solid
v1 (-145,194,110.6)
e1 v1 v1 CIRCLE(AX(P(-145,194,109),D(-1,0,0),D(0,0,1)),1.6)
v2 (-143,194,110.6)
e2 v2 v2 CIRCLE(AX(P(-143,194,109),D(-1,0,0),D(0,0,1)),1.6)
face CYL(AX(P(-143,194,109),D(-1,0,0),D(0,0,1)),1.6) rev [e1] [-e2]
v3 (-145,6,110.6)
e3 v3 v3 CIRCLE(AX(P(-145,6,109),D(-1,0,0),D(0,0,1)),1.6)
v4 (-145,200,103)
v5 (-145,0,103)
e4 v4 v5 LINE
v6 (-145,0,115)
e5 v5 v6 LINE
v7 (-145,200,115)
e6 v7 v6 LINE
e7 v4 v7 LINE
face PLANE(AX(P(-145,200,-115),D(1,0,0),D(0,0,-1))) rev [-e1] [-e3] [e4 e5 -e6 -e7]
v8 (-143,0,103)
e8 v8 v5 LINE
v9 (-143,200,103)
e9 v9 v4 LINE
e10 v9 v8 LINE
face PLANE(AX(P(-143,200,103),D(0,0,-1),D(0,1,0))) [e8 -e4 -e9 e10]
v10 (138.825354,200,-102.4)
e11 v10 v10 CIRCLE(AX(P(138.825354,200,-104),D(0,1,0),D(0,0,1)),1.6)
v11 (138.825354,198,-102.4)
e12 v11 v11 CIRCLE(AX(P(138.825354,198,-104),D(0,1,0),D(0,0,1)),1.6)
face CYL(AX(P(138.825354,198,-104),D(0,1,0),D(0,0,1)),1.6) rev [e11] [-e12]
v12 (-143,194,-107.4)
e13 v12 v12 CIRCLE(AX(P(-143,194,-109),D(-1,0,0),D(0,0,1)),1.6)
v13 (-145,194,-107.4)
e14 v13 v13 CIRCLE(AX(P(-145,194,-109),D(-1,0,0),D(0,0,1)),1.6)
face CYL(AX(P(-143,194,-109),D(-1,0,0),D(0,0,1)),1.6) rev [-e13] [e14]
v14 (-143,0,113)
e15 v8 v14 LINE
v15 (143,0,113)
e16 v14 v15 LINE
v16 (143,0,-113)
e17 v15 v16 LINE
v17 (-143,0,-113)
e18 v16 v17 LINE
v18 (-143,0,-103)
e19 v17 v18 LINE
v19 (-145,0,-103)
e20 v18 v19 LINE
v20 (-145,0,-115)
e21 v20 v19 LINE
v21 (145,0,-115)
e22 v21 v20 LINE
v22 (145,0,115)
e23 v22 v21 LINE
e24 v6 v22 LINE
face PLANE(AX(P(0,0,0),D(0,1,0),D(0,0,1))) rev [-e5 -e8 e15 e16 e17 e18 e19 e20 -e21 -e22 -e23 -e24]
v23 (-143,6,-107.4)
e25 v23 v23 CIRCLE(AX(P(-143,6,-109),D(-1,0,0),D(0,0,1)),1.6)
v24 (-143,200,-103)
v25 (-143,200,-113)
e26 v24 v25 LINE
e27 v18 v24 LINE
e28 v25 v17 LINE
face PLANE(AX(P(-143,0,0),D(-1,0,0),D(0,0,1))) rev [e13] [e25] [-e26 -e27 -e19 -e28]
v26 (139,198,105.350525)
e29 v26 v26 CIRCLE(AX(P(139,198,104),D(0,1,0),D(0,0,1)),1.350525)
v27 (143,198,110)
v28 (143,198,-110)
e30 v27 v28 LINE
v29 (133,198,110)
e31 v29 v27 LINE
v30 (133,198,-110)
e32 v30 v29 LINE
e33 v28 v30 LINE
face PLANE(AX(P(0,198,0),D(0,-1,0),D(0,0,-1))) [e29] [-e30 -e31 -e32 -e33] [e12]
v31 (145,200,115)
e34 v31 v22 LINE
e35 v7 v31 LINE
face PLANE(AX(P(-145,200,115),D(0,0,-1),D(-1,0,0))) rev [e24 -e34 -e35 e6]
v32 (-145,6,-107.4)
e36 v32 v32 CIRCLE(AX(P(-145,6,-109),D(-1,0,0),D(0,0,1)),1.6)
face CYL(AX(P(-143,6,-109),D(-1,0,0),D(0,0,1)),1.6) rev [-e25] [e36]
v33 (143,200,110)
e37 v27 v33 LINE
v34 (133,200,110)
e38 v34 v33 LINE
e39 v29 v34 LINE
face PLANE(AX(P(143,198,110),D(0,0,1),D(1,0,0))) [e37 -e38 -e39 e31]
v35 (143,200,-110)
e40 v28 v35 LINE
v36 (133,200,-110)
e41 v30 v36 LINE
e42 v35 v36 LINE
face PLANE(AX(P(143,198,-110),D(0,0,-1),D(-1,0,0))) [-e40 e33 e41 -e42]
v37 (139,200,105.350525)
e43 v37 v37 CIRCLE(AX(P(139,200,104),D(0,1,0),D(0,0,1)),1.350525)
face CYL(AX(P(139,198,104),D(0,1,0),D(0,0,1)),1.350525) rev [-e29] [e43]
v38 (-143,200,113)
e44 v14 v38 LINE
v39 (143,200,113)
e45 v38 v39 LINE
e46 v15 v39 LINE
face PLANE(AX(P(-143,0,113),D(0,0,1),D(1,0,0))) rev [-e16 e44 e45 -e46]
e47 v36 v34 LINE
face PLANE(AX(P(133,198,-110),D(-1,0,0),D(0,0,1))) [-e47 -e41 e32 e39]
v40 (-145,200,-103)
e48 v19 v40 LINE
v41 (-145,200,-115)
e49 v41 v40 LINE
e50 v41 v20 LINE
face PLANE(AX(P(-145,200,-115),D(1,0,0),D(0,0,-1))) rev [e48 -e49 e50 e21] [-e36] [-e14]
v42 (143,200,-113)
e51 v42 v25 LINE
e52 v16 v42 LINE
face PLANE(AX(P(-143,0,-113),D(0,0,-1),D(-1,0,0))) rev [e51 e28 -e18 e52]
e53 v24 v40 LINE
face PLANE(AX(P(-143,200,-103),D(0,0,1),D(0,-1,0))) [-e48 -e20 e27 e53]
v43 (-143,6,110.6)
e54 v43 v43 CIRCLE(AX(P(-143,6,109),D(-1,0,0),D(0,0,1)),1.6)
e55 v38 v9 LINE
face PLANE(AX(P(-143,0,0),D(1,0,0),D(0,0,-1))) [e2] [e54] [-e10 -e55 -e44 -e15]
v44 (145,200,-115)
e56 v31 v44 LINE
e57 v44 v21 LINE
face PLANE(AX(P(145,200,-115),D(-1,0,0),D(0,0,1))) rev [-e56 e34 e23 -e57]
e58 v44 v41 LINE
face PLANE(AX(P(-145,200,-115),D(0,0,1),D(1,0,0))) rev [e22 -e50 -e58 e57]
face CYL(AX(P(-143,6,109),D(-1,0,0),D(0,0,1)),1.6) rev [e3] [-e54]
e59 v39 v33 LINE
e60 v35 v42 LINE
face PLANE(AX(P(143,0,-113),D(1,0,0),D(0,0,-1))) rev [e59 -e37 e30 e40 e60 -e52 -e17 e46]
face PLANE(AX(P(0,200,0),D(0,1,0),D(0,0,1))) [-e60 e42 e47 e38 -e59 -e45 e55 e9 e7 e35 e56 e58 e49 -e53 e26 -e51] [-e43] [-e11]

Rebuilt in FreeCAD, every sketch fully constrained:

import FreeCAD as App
import Part
import Sketcher
Q = App.Units.Quantity


def add_polygon(sketch, points):
    """Adds a closed chain of lines whose ends are joined by coincident constraints."""
    first, n = sketch.GeometryCount, len(points)
    for a, b in zip(points, points[1:] + points[:1]):
        sketch.addGeometry(Part.LineSegment(App.Vector(*a, 0), App.Vector(*b, 0)), False)
    for i in range(n):
        sketch.addConstraint(Sketcher.Constraint("Coincident", first + i, 2, first + (i + 1) % n, 1))

doc = App.newDocument("Part")
body = doc.addObject("PartDesign::Body", "Body")

# Sketch on XZ plane
sketch1 = body.newObject("Sketcher::SketchObject", "Sketch")
sketch1.AttachmentSupport = (doc.getObject("XZ_Plane"), [""])
sketch1.MapMode = "FlatFace"
add_polygon(sketch1, [(-145, -115), (-145, 115), (145, 115), (145, -115)])  # lines 0-3
sketch1.addConstraint([
    Sketcher.Constraint("Vertical", 0),
    Sketcher.Constraint("Horizontal", 1),
    Sketcher.Constraint("Vertical", 2),
    Sketcher.Constraint("Horizontal", 3),
    Sketcher.Constraint("Symmetric", 0, 2, 2, 2, -1, 1),
    Sketcher.Constraint("DistanceX", 1, 1, 1, 2, Q("290 mm")),
    Sketcher.Constraint("DistanceY", 0, 1, 0, 2, Q("230 mm")),
])
pad1 = body.newObject("PartDesign::Pad", "Pad")
pad1.Profile = sketch1
pad1.Length = 200
pad1.Reversed = True

# Sketch on XZ plane
sketch2 = body.newObject("Sketcher::SketchObject", "Sketch001")
sketch2.AttachmentSupport = (doc.getObject("XZ_Plane"), [""])
sketch2.MapMode = "FlatFace"
sketch2.AttachmentOffset = App.Placement(App.Vector(0, 0, -200), App.Rotation())
add_polygon(sketch2, [(-143, -113), (-143, 113), (143, 113), (143, -113)])  # lines 0-3
sketch2.addConstraint([
    Sketcher.Constraint("Vertical", 0),
    Sketcher.Constraint("Horizontal", 1),
    Sketcher.Constraint("Vertical", 2),
    Sketcher.Constraint("Horizontal", 3),
    Sketcher.Constraint("Symmetric", 0, 2, 2, 2, -1, 1),
    Sketcher.Constraint("DistanceX", 1, 1, 1, 2, Q("286 mm")),
    Sketcher.Constraint("DistanceY", 0, 1, 0, 2, Q("226 mm")),
])
pocket1 = body.newObject("PartDesign::Pocket", "Pocket")
pocket1.Profile = sketch2
pocket1.Length = 200
pocket1.Reversed = True

# Sketch on YZ plane
sketch3 = body.newObject("Sketcher::SketchObject", "Sketch002")
sketch3.AttachmentSupport = (doc.getObject("YZ_Plane"), [""])
sketch3.MapMode = "FlatFace"
sketch3.AttachmentOffset = App.Placement(App.Vector(0, 0, -145), App.Rotation())
add_polygon(sketch3, [(200, -113), (0, -113), (0, 113), (200, 113)])  # lines 0-3
sketch3.addConstraint([
    Sketcher.Constraint("Horizontal", 0),
    Sketcher.Constraint("Vertical", 1),
    Sketcher.Constraint("Horizontal", 2),
    Sketcher.Constraint("Vertical", 3),
    Sketcher.Constraint("Symmetric", 0, 2, 1, 2, -1, 1),
    Sketcher.Constraint("DistanceX", 0, 2, 0, 1, Q("200 mm")),
    Sketcher.Constraint("DistanceY", 1, 1, 1, 2, Q("226 mm")),
])
pocket2 = body.newObject("PartDesign::Pocket", "Pocket001")
pocket2.Profile = sketch3
pocket2.Length = 2
pocket2.Reversed = True

# Sketch on XZ plane
sketch4 = body.newObject("Sketcher::SketchObject", "Sketch003")
sketch4.AttachmentSupport = (doc.getObject("XZ_Plane"), [""])
sketch4.MapMode = "FlatFace"
sketch4.AttachmentOffset = App.Placement(App.Vector(0, 0, -200), App.Rotation())
add_polygon(sketch4, [(133, -110), (133, 110), (143, 110), (143, -110)])  # lines 0-3
sketch4.addConstraint([
    Sketcher.Constraint("Vertical", 0),
    Sketcher.Constraint("Horizontal", 1),
    Sketcher.Constraint("Vertical", 2),
    Sketcher.Constraint("Horizontal", 3),
    Sketcher.Constraint("DistanceX", 1, 1, 1, 2, Q("10 mm")),
    Sketcher.Constraint("DistanceY", 0, 1, 0, 2, Q("220 mm")),
    Sketcher.Constraint("DistanceX", -1, 1, 0, 2, Q("133 mm")),
    Sketcher.Constraint("DistanceY", -1, 1, 0, 2, Q("110 mm")),
])
pad2 = body.newObject("PartDesign::Pad", "Pad001")
pad2.Profile = sketch4
pad2.Length = 2

# Sketch on XZ plane
sketch5 = body.newObject("Sketcher::SketchObject", "Sketch004")
sketch5.AttachmentSupport = (doc.getObject("XZ_Plane"), [""])
sketch5.MapMode = "FlatFace"
sketch5.AttachmentOffset = App.Placement(App.Vector(0, 0, -200), App.Rotation())
sketch5.addGeometry(Part.Circle(App.Vector(138.825354, -104, 0), App.Vector(0, 0, 1), 1.6), False)
sketch5.addConstraint([
    Sketcher.Constraint("Diameter", 0, Q("3.2 mm")),
    Sketcher.Constraint("DistanceY", 0, 3, -1, 1, Q("104 mm")),
    Sketcher.Constraint("DistanceX", -1, 1, 0, 3, Q("138.825354 mm")),
])
pocket3 = body.newObject("PartDesign::Pocket", "Pocket002")
pocket3.Profile = sketch5
pocket3.Length = 2
pocket3.Reversed = True

# Sketch on XZ plane
sketch6 = body.newObject("Sketcher::SketchObject", "Sketch005")
sketch6.AttachmentSupport = (doc.getObject("XZ_Plane"), [""])
sketch6.MapMode = "FlatFace"
sketch6.AttachmentOffset = App.Placement(App.Vector(0, 0, -200), App.Rotation())
sketch6.addGeometry(Part.Circle(App.Vector(139, 104, 0), App.Vector(0, 0, 1), 1.350525), False)
sketch6.addConstraint([
    Sketcher.Constraint("DistanceX", -1, 1, 0, 3, Q("139 mm")),
    Sketcher.Constraint("DistanceY", -1, 1, 0, 3, Q("104 mm")),
    Sketcher.Constraint("Diameter", 0, Q("2.70105 mm")),
])
pocket4 = body.newObject("PartDesign::Pocket", "Pocket003")
pocket4.Profile = sketch6
pocket4.Length = 2
pocket4.Reversed = True

# Sketch on YZ plane
sketch7 = body.newObject("Sketcher::SketchObject", "Sketch006")
sketch7.AttachmentSupport = (doc.getObject("YZ_Plane"), [""])
sketch7.MapMode = "FlatFace"
sketch7.AttachmentOffset = App.Placement(App.Vector(0, 0, -145), App.Rotation())
add_polygon(sketch7, [(200, 103), (0, 103), (0, 113), (200, 113)])  # lines 0-3
sketch7.addConstraint([
    Sketcher.Constraint("Horizontal", 0),
    Sketcher.Constraint("Vertical", 1),
    Sketcher.Constraint("Horizontal", 2),
    Sketcher.Constraint("Vertical", 3),
    Sketcher.Constraint("PointOnObject", 0, 2, -2),
    Sketcher.Constraint("DistanceX", 0, 2, 0, 1, Q("200 mm")),
    Sketcher.Constraint("DistanceY", 1, 1, 1, 2, Q("10 mm")),
    Sketcher.Constraint("DistanceY", -1, 1, 0, 2, Q("103 mm")),
])
pad3 = body.newObject("PartDesign::Pad", "Pad002")
pad3.Profile = sketch7
pad3.Length = 2

# Sketch on YZ plane
sketch8 = body.newObject("Sketcher::SketchObject", "Sketch007")
sketch8.AttachmentSupport = (doc.getObject("YZ_Plane"), [""])
sketch8.MapMode = "FlatFace"
sketch8.AttachmentOffset = App.Placement(App.Vector(0, 0, -145), App.Rotation())
sketch8.addGeometry(Part.Circle(App.Vector(194, 109, 0), App.Vector(0, 0, 1), 1.6), False)
sketch8.addConstraint([
    Sketcher.Constraint("Diameter", 0, Q("3.2 mm")),
    Sketcher.Constraint("DistanceX", -1, 1, 0, 3, Q("194 mm")),
    Sketcher.Constraint("DistanceY", -1, 1, 0, 3, Q("109 mm")),
])
pocket5 = body.newObject("PartDesign::Pocket", "Pocket004")
pocket5.Profile = sketch8
pocket5.Length = 2
pocket5.Reversed = True

# Sketch on YZ plane
sketch9 = body.newObject("Sketcher::SketchObject", "Sketch008")
sketch9.AttachmentSupport = (doc.getObject("YZ_Plane"), [""])
sketch9.MapMode = "FlatFace"
sketch9.AttachmentOffset = App.Placement(App.Vector(0, 0, -145), App.Rotation())
sketch9.addGeometry(Part.Circle(App.Vector(6, 109, 0), App.Vector(0, 0, 1), 1.6), False)
sketch9.addConstraint([
    Sketcher.Constraint("Diameter", 0, Q("3.2 mm")),
    Sketcher.Constraint("DistanceX", -1, 1, 0, 3, Q("6 mm")),
    Sketcher.Constraint("DistanceY", -1, 1, 0, 3, Q("109 mm")),
])
pocket6 = body.newObject("PartDesign::Pocket", "Pocket005")
pocket6.Profile = sketch9
pocket6.Length = 2
pocket6.Reversed = True

# Sketch on YZ plane
sketch10 = body.newObject("Sketcher::SketchObject", "Sketch009")
sketch10.AttachmentSupport = (doc.getObject("YZ_Plane"), [""])
sketch10.MapMode = "FlatFace"
sketch10.AttachmentOffset = App.Placement(App.Vector(0, 0, -145), App.Rotation())
add_polygon(sketch10, [(200, -113), (0, -113), (0, -103), (200, -103)])  # lines 0-3
sketch10.addConstraint([
    Sketcher.Constraint("Horizontal", 0),
    Sketcher.Constraint("Vertical", 1),
    Sketcher.Constraint("Horizontal", 2),
    Sketcher.Constraint("Vertical", 3),
    Sketcher.Constraint("PointOnObject", 0, 2, -2),
    Sketcher.Constraint("DistanceX", 0, 2, 0, 1, Q("200 mm")),
    Sketcher.Constraint("DistanceY", 1, 1, 1, 2, Q("10 mm")),
    Sketcher.Constraint("DistanceY", 0, 2, -1, 1, Q("113 mm")),
])
pad4 = body.newObject("PartDesign::Pad", "Pad003")
pad4.Profile = sketch10
pad4.Length = 2

# Sketch on YZ plane
sketch11 = body.newObject("Sketcher::SketchObject", "Sketch010")
sketch11.AttachmentSupport = (doc.getObject("YZ_Plane"), [""])
sketch11.MapMode = "FlatFace"
sketch11.AttachmentOffset = App.Placement(App.Vector(0, 0, -145), App.Rotation())
sketch11.addGeometry(Part.Circle(App.Vector(194, -109, 0), App.Vector(0, 0, 1), 1.6), False)
sketch11.addConstraint([
    Sketcher.Constraint("Diameter", 0, Q("3.2 mm")),
    Sketcher.Constraint("DistanceX", -1, 1, 0, 3, Q("194 mm")),
    Sketcher.Constraint("DistanceY", 0, 3, -1, 1, Q("109 mm")),
])
pocket7 = body.newObject("PartDesign::Pocket", "Pocket006")
pocket7.Profile = sketch11
pocket7.Length = 2
pocket7.Reversed = True

# Sketch on YZ plane
sketch12 = body.newObject("Sketcher::SketchObject", "Sketch011")
sketch12.AttachmentSupport = (doc.getObject("YZ_Plane"), [""])
sketch12.MapMode = "FlatFace"
sketch12.AttachmentOffset = App.Placement(App.Vector(0, 0, -145), App.Rotation())
sketch12.addGeometry(Part.Circle(App.Vector(6, -109, 0), App.Vector(0, 0, 1), 1.6), False)
sketch12.addConstraint([
    Sketcher.Constraint("Diameter", 0, Q("3.2 mm")),
    Sketcher.Constraint("DistanceX", -1, 1, 0, 3, Q("6 mm")),
    Sketcher.Constraint("DistanceY", 0, 3, -1, 1, Q("109 mm")),
])
pocket8 = body.newObject("PartDesign::Pocket", "Pocket007")
pocket8.Profile = sketch12
pocket8.Length = 2
pocket8.Reversed = True

doc.recompute()
